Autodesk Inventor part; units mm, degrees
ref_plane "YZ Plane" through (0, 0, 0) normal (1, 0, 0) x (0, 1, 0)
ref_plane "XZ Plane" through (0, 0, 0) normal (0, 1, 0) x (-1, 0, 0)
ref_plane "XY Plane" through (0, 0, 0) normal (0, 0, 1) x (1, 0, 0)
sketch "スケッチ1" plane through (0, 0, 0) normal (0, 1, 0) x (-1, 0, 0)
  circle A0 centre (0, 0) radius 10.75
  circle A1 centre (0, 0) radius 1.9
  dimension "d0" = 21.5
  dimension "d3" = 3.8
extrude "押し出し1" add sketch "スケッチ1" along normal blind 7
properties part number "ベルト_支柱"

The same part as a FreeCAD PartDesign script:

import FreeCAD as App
import Part
import Sketcher
from FreeCAD import Vector
Q = App.Units.Quantity

doc = App.newDocument("Part")
body = doc.addObject("PartDesign::Body", "Body")

# Sketch on XZ plane
sketch1 = doc.addObject("Sketcher::SketchObject", "Sketch")
body.addObject(sketch1)
sketch1.AttachmentSupport = (doc.XZ_Plane, [""])
sketch1.MapMode = "FlatFace"
sketch1.addGeometry(Part.Circle(Vector(0, 0, 0), Vector(0, 0, 1), 10.8), False)
sketch1.addGeometry(Part.Circle(Vector(0, 0, 0), Vector(0, 0, 1), 1.9), False)
sketch1.addConstraint(Sketcher.Constraint("Coincident", 0, 3, -1, 1))
sketch1.addConstraint(Sketcher.Constraint("Coincident", 1, 3, -1, 1))
sketch1.addConstraint(Sketcher.Constraint("Diameter", 0, Q("21.5 mm")))
sketch1.addConstraint(Sketcher.Constraint("Diameter", 1, Q("3.8 mm")))
pad1 = doc.addObject("PartDesign::Pad", "Pad")
body.addObject(pad1)
pad1.Profile = sketch1
pad1.Length = 7
pad1.Reversed = True

doc.recompute()
